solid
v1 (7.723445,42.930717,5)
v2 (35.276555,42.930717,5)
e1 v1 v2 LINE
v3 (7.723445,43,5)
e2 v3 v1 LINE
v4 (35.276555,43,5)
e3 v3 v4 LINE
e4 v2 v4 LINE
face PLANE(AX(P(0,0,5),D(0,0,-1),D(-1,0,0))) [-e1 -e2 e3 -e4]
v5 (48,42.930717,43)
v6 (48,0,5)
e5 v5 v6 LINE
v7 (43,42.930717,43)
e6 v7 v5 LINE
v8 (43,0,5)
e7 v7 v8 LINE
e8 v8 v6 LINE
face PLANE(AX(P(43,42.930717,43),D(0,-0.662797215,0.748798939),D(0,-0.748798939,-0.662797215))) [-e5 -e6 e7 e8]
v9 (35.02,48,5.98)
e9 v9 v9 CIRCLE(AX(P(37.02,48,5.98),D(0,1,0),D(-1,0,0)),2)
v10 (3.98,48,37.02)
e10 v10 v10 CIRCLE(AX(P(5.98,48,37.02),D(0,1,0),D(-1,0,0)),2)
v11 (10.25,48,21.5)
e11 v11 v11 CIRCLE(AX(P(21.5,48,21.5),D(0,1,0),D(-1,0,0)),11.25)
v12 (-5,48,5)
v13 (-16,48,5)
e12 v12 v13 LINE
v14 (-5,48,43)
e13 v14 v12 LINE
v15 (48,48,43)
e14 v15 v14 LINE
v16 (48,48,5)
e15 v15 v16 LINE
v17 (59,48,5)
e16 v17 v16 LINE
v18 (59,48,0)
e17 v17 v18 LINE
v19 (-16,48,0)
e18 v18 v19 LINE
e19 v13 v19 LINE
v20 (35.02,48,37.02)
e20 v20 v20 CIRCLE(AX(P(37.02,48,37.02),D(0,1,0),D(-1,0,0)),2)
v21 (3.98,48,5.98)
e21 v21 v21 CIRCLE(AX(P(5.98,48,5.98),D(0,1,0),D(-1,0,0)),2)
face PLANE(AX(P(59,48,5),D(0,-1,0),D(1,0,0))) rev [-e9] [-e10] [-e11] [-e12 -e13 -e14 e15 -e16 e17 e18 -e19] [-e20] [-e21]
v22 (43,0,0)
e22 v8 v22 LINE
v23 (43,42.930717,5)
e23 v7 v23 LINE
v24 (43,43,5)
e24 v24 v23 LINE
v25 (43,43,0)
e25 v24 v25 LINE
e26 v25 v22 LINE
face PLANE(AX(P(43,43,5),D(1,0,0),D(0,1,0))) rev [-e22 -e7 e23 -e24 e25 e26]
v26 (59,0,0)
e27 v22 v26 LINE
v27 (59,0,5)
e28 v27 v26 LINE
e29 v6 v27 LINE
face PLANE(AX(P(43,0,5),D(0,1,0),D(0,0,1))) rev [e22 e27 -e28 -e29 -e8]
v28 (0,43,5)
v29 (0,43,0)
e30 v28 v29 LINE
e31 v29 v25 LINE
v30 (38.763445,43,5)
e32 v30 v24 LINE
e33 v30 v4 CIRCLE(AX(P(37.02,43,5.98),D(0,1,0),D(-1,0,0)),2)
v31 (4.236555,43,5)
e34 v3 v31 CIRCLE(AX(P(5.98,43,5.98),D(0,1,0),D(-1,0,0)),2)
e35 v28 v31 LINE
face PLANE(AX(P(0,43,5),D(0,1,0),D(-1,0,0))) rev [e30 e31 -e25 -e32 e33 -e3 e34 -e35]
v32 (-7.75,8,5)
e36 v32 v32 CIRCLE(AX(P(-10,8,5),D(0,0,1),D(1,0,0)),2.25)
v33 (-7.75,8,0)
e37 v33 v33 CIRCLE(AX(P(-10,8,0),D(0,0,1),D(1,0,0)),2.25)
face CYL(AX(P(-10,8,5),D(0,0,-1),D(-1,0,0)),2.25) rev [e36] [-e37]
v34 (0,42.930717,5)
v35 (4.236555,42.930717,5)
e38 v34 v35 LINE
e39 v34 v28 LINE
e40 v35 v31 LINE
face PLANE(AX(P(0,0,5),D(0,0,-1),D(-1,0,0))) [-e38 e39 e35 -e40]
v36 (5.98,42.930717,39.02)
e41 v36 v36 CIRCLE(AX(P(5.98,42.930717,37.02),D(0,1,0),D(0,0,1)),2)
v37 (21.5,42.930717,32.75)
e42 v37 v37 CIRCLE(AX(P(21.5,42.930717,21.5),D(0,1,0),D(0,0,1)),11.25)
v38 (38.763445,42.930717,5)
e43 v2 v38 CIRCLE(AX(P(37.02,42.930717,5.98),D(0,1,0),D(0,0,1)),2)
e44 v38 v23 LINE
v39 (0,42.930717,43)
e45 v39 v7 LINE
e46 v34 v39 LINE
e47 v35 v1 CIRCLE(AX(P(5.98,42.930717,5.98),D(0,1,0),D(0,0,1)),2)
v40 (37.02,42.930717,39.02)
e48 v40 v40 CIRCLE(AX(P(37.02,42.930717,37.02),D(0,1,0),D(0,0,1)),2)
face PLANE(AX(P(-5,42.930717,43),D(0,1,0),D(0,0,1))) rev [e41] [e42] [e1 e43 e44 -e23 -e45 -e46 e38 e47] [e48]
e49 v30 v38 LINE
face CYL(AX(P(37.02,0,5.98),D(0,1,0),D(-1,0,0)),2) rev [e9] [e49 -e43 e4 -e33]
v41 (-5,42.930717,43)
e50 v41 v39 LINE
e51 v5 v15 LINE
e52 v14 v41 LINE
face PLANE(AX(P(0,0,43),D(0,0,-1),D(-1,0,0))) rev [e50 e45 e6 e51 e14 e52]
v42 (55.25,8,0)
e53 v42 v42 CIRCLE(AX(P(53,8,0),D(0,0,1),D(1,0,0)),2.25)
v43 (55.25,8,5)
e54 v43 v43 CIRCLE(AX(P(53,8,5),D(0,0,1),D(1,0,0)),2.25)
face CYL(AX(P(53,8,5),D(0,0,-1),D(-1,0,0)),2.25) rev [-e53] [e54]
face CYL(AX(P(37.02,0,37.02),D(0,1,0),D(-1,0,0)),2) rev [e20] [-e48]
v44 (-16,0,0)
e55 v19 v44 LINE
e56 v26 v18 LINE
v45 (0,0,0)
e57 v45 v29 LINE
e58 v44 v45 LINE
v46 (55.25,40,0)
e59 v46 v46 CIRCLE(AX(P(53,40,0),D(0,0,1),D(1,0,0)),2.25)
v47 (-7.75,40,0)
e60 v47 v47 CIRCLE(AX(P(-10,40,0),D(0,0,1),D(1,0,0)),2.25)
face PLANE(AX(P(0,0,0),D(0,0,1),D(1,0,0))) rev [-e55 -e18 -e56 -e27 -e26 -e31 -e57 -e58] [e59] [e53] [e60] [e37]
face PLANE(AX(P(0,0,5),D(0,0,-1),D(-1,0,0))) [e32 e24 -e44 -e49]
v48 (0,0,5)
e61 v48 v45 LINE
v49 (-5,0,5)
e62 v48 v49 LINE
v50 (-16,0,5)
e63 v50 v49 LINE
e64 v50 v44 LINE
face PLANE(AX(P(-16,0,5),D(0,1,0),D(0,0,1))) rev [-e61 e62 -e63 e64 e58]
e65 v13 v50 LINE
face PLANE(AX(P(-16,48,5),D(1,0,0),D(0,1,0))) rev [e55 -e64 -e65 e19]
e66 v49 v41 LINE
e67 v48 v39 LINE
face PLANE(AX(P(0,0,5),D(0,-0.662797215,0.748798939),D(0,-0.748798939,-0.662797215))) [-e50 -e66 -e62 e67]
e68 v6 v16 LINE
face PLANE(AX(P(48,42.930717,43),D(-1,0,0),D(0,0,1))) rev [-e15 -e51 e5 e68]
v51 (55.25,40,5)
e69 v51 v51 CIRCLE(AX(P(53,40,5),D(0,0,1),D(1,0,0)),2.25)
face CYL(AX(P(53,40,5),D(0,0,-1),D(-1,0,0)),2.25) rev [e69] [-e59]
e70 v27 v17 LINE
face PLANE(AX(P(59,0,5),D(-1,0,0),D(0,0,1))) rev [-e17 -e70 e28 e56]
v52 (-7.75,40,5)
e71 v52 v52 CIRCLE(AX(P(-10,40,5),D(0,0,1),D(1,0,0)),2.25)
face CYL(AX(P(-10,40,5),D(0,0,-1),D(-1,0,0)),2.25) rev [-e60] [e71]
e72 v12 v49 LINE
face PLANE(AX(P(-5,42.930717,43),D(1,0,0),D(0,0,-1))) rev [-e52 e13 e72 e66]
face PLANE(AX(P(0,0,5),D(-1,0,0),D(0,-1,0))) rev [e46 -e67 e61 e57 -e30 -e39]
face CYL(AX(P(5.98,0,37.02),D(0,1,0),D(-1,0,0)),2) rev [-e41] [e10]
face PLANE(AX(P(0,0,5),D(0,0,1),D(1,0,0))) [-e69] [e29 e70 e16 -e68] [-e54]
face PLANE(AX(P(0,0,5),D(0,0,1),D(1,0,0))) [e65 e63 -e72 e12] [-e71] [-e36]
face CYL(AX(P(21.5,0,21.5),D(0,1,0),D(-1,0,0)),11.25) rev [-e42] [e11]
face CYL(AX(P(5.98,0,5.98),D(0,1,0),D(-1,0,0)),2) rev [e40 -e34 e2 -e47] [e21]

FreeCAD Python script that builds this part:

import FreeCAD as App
import Part
import Sketcher

V = App.Vector

doc = App.newDocument("Part")
body = doc.addObject("PartDesign::Body", "Body")

sketch1 = body.newObject("Sketcher::SketchObject", "Sketch")
sketch1.AttachmentSupport = (doc.getObject("XY_Plane"), [""])
sketch1.MapMode = "FlatFace"
sketch1.addGeometry(Part.LineSegment(V(0, 0, 0), V(0, 43, 0)), False)
sketch1.addGeometry(Part.LineSegment(V(0, 43, 0), V(43, 43, 0)), False)
sketch1.addGeometry(Part.LineSegment(V(43, 43, 0), V(43, 0, 0)), False)
sketch1.addGeometry(Part.LineSegment(V(43, 0, 0), V(59, 0, 0)), False)
sketch1.addGeometry(Part.LineSegment(V(59, 0, 0), V(59, 48, 0)), False)
sketch1.addGeometry(Part.LineSegment(V(59, 48, 0), V(-16, 48, 0)), False)
sketch1.addGeometry(Part.LineSegment(V(-16, 48, 0), V(-16, 0, 0)), False)
sketch1.addGeometry(Part.LineSegment(V(-16, 0, 0), V(0, 0, 0)), False)
sketch1.addGeometry(Part.Circle(V(-10, 8, 0), V(0, 0, 1), 2.25), False)
sketch1.addGeometry(Part.Circle(V(53, 8, 0), V(0, 0, 1), 2.25), False)
sketch1.addGeometry(Part.Circle(V(-10, 40, 0), V(0, 0, 1), 2.25), False)
sketch1.addGeometry(Part.Circle(V(53, 40, 0), V(0, 0, 1), 2.25), False)
sketch1.addConstraint(Sketcher.Constraint("Coincident", 0, 2, 1, 1))
sketch1.addConstraint(Sketcher.Constraint("Coincident", 1, 2, 2, 1))
sketch1.addConstraint(Sketcher.Constraint("Coincident", 2, 2, 3, 1))
sketch1.addConstraint(Sketcher.Constraint("Coincident", 3, 2, 4, 1))
sketch1.addConstraint(Sketcher.Constraint("Coincident", 4, 2, 5, 1))
sketch1.addConstraint(Sketcher.Constraint("Coincident", 5, 2, 6, 1))
sketch1.addConstraint(Sketcher.Constraint("Coincident", 6, 2, 7, 1))
sketch1.addConstraint(Sketcher.Constraint("Coincident", 7, 2, 0, 1))
sketch1.addConstraint(Sketcher.Constraint("Vertical", 0))
sketch1.addConstraint(Sketcher.Constraint("Horizontal", 1))
sketch1.addConstraint(Sketcher.Constraint("Vertical", 2))
sketch1.addConstraint(Sketcher.Constraint("Horizontal", 3))
sketch1.addConstraint(Sketcher.Constraint("Vertical", 4))
sketch1.addConstraint(Sketcher.Constraint("Horizontal", 5))
sketch1.addConstraint(Sketcher.Constraint("Vertical", 6))
sketch1.addConstraint(Sketcher.Constraint("Horizontal", 7))
sketch1.addConstraint(Sketcher.Constraint("Coincident", 7, 2, -1, 1))
sketch1.addConstraint(Sketcher.Constraint("Equal", 8, 9))
sketch1.addConstraint(Sketcher.Constraint("Equal", 9, 10))
sketch1.addConstraint(Sketcher.Constraint("Equal", 10, 11))
sketch1.addConstraint(Sketcher.Constraint("PointOnObject", 2, 2, -1))
sketch1.addConstraint(Sketcher.Constraint("Horizontal", 8, 3, 9, 3))
sketch1.addConstraint(Sketcher.Constraint("Horizontal", 10, 3, 11, 3))
sketch1.addConstraint(Sketcher.Constraint("Vertical", 8, 3, 10, 3))
sketch1.addConstraint(Sketcher.Constraint("Vertical", 9, 3, 11, 3))
sketch1.addConstraint(Sketcher.Constraint("Equal", 3, 7))
sketch1.addConstraint(Sketcher.Constraint("Equal", 1, 0))
sketch1.addConstraint(Sketcher.Constraint("Diameter", 8, 4.5))
sketch1.addConstraint(Sketcher.Constraint("DistanceX", 1, 1, 1, 2, 43.0))
sketch1.addConstraint(Sketcher.Constraint("DistanceX", 3, 1, 3, 2, 16.0))
sketch1.addConstraint(Sketcher.Constraint("DistanceY", 4, 1, 4, 2, 48.0))
sketch1.addConstraint(Sketcher.Constraint("DistanceX", 8, 3, -1, 1, 10.0))
sketch1.addConstraint(Sketcher.Constraint("DistanceY", -1, 1, 8, 3, 8.0))
sketch1.addConstraint(Sketcher.Constraint("DistanceX", -1, 1, 9, 3, 53.0))
sketch1.addConstraint(Sketcher.Constraint("DistanceY", -1, 1, 10, 3, 40.0))
pad1 = body.newObject("PartDesign::Pad", "Pad")
pad1.Profile = sketch1
pad1.Length = 5

sketch2 = body.newObject("Sketcher::SketchObject", "Sketch001")
sketch2.AttachmentSupport = (doc.getObject("XY_Plane"), [""])
sketch2.MapMode = "FlatFace"
sketch2.AttachmentOffset = App.Placement(V(0, 0, 5), App.Rotation())
sketch2.addGeometry(Part.LineSegment(V(-5, 48, 0), V(-5, 42.930717, 0)), False)
sketch2.addGeometry(Part.LineSegment(V(-5, 42.930717, 0), V(48, 42.930717, 0)), False)
sketch2.addGeometry(Part.LineSegment(V(48, 42.930717, 0), V(48, 48, 0)), False)
sketch2.addGeometry(Part.LineSegment(V(48, 48, 0), V(-5, 48, 0)), False)
sketch2.addConstraint(Sketcher.Constraint("Coincident", 0, 2, 1, 1))
sketch2.addConstraint(Sketcher.Constraint("Coincident", 1, 2, 2, 1))
sketch2.addConstraint(Sketcher.Constraint("Coincident", 2, 2, 3, 1))
sketch2.addConstraint(Sketcher.Constraint("Coincident", 3, 2, 0, 1))
sketch2.addConstraint(Sketcher.Constraint("Vertical", 0))
sketch2.addConstraint(Sketcher.Constraint("Horizontal", 1))
sketch2.addConstraint(Sketcher.Constraint("Vertical", 2))
sketch2.addConstraint(Sketcher.Constraint("Horizontal", 3))
sketch2.addConstraint(Sketcher.Constraint("DistanceX", 1, 1, 1, 2, 53.0))
sketch2.addConstraint(Sketcher.Constraint("DistanceX", 0, 2, -1, 1, 5.0))
sketch2.addConstraint(Sketcher.Constraint("DistanceY", -1, 1, 2, 2, 48.0))
sketch2.addConstraint(Sketcher.Constraint("DistanceY", 0, 2, 0, 1, 5.069283))
pad2 = body.newObject("PartDesign::Pad", "Pad001")
pad2.Profile = sketch2
pad2.Length = 38

sketch3 = body.newObject("Sketcher::SketchObject", "Sketch002")
sketch3.AttachmentSupport = (doc.getObject("YZ_Plane"), [""])
sketch3.MapMode = "FlatFace"
sketch3.AttachmentOffset = App.Placement(V(0, 0, -5), App.Rotation())
sketch3.addGeometry(Part.LineSegment(V(48, 5, 0), V(0, 5, 0)), False)
sketch3.addGeometry(Part.LineSegment(V(0, 5, 0), V(42.930717, 43, 0)), False)
sketch3.addGeometry(Part.LineSegment(V(42.930717, 43, 0), V(48, 43, 0)), False)
sketch3.addGeometry(Part.LineSegment(V(48, 43, 0), V(48, 5, 0)), False)
sketch3.addConstraint(Sketcher.Constraint("Coincident", 0, 2, 1, 1))
sketch3.addConstraint(Sketcher.Constraint("Coincident", 1, 2, 2, 1))
sketch3.addConstraint(Sketcher.Constraint("Coincident", 2, 2, 3, 1))
sketch3.addConstraint(Sketcher.Constraint("Coincident", 3, 2, 0, 1))
sketch3.addConstraint(Sketcher.Constraint("Horizontal", 0))
sketch3.addConstraint(Sketcher.Constraint("Horizontal", 2))
sketch3.addConstraint(Sketcher.Constraint("Vertical", 3))
sketch3.addConstraint(Sketcher.Constraint("PointOnObject", 0, 2, -2))
sketch3.addConstraint(Sketcher.Constraint("DistanceX", 0, 2, 0, 1, 48.0))
sketch3.addConstraint(Sketcher.Constraint("DistanceY", 3, 2, 3, 1, 38.0))
sketch3.addConstraint(Sketcher.Constraint("DistanceY", -1, 1, 0, 2, 5.0))
sketch3.addConstraint(Sketcher.Constraint("Distance", 1, 57.33277))
pad3 = body.newObject("PartDesign::Pad", "Pad002")
pad3.Profile = sketch3
pad3.Length = 5

sketch4 = body.newObject("Sketcher::SketchObject", "Sketch003")
sketch4.AttachmentSupport = (doc.getObject("YZ_Plane"), [""])
sketch4.MapMode = "FlatFace"
sketch4.AttachmentOffset = App.Placement(V(0, 0, 48), App.Rotation())
sketch4.addGeometry(Part.LineSegment(V(48, 43, 0), V(42.930717, 43, 0)), False)
sketch4.addGeometry(Part.LineSegment(V(42.930717, 43, 0), V(0, 5, 0)), False)
sketch4.addGeometry(Part.LineSegment(V(0, 5, 0), V(48, 5, 0)), False)
sketch4.addGeometry(Part.LineSegment(V(48, 5, 0), V(48, 43, 0)), False)
sketch4.addConstraint(Sketcher.Constraint("Coincident", 0, 2, 1, 1))
sketch4.addConstraint(Sketcher.Constraint("Coincident", 1, 2, 2, 1))
sketch4.addConstraint(Sketcher.Constraint("Coincident", 2, 2, 3, 1))
sketch4.addConstraint(Sketcher.Constraint("Coincident", 3, 2, 0, 1))
sketch4.addConstraint(Sketcher.Constraint("Horizontal", 0))
sketch4.addConstraint(Sketcher.Constraint("Horizontal", 2))
sketch4.addConstraint(Sketcher.Constraint("Vertical", 3))
sketch4.addConstraint(Sketcher.Constraint("PointOnObject", 1, 2, -2))
sketch4.addConstraint(Sketcher.Constraint("DistanceX", 2, 1, 2, 2, 48.0))
sketch4.addConstraint(Sketcher.Constraint("DistanceY", 3, 1, 3, 2, 38.0))
sketch4.addConstraint(Sketcher.Constraint("DistanceY", -1, 1, 0, 2, 43.0))
sketch4.addConstraint(Sketcher.Constraint("Distance", 1, 57.33277))
pad4 = body.newObject("PartDesign::Pad", "Pad003")
pad4.Profile = sketch4
pad4.Length = 5
pad4.Reversed = True

sketch5 = body.newObject("Sketcher::SketchObject", "Sketch004")
sketch5.AttachmentSupport = (doc.getObject("XZ_Plane"), [""])
sketch5.MapMode = "FlatFace"
sketch5.AttachmentOffset = App.Placement(V(0, 0, -48), App.Rotation())
sketch5.addGeometry(Part.Circle(V(21.5, 21.5, 0), V(0, 0, 1), 11.25), False)
sketch5.addGeometry(Part.Circle(V(5.98, 5.98, 0), V(0, 0, 1), 2), False)
sketch5.addGeometry(Part.Circle(V(37.02, 5.98, 0), V(0, 0, 1), 2), False)
sketch5.addGeometry(Part.Circle(V(37.02, 37.02, 0), V(0, 0, 1), 2), False)
sketch5.addGeometry(Part.Circle(V(5.98, 37.02, 0), V(0, 0, 1), 2), False)
sketch5.addConstraint(Sketcher.Constraint("Equal", 1, 2))
sketch5.addConstraint(Sketcher.Constraint("Equal", 2, 3))
sketch5.addConstraint(Sketcher.Constraint("Equal", 3, 4))
sketch5.addConstraint(Sketcher.Constraint("Horizontal", 1, 3, 2, 3))
sketch5.addConstraint(Sketcher.Constraint("Horizontal", 3, 3, 4, 3))
sketch5.addConstraint(Sketcher.Constraint("Vertical", 2, 3, 3, 3))
sketch5.addConstraint(Sketcher.Constraint("Vertical", 1, 3, 4, 3))
sketch5.addConstraint(Sketcher.Constraint("Diameter", 1, 4.0))
sketch5.addConstraint(Sketcher.Constraint("Diameter", 0, 22.5))
sketch5.addConstraint(Sketcher.Constraint("DistanceX", -1, 1, 0, 3, 21.5))
sketch5.addConstraint(Sketcher.Constraint("DistanceY", -1, 1, 0, 3, 21.5))
sketch5.addConstraint(Sketcher.Constraint("DistanceX", -1, 1, 1, 3, 5.98))
sketch5.addConstraint(Sketcher.Constraint("DistanceY", -1, 1, 1, 3, 5.98))
sketch5.addConstraint(Sketcher.Constraint("DistanceX", -1, 1, 2, 3, 37.02))
sketch5.addConstraint(Sketcher.Constraint("DistanceY", -1, 1, 3, 3, 37.02))
pocket1 = body.newObject("PartDesign::Pocket", "Pocket")
pocket1.Profile = sketch5
pocket1.Type = "ThroughAll"
pocket1.Reversed = True

doc.recompute()
